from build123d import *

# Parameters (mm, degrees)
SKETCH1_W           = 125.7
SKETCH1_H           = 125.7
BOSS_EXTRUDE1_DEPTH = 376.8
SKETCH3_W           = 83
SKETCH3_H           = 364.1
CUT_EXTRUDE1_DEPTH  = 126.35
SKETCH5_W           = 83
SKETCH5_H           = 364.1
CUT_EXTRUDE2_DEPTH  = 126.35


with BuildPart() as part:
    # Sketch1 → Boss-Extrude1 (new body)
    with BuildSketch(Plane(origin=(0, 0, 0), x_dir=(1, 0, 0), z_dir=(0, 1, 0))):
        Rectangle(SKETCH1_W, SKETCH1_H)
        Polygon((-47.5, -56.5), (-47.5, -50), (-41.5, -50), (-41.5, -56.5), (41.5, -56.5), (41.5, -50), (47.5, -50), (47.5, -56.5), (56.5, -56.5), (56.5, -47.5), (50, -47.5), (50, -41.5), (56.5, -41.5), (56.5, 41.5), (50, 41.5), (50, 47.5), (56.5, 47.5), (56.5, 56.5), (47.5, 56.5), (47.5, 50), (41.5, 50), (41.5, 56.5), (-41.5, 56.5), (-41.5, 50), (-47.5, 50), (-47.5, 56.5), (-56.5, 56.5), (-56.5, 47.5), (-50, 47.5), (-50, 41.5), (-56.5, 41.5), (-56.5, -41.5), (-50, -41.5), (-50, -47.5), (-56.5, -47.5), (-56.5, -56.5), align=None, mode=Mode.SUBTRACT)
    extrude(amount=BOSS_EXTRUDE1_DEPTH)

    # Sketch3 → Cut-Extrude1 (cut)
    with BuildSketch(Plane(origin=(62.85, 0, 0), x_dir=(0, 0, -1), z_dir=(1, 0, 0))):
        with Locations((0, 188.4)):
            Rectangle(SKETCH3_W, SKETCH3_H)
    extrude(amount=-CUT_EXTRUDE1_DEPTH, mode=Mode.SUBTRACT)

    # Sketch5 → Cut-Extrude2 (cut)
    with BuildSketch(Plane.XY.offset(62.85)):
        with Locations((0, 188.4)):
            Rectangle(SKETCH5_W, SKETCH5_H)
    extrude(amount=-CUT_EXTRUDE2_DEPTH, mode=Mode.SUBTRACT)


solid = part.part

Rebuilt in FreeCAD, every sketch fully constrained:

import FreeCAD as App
import Part
import Sketcher

doc = App.newDocument("Part")
body = doc.addObject("PartDesign::Body", "Body")

# Sketch on XZ plane
sketch1 = body.newObject("Sketcher::SketchObject", "Sketch")
sketch1.AttachmentSupport = (doc.getObject("XZ_Plane"), [""])
sketch1.MapMode = "FlatFace"
sketch1.addGeometry(Part.LineSegment(App.Vector(-62.85, -62.85, 0), App.Vector(-62.85, 62.85, 0)), False)
sketch1.addGeometry(Part.LineSegment(App.Vector(-62.85, 62.85, 0), App.Vector(62.85, 62.85, 0)), False)
sketch1.addGeometry(Part.LineSegment(App.Vector(62.85, 62.85, 0), App.Vector(62.85, -62.85, 0)), False)
sketch1.addGeometry(Part.LineSegment(App.Vector(62.85, -62.85, 0), App.Vector(-62.85, -62.85, 0)), False)
sketch1.addGeometry(Part.LineSegment(App.Vector(-47.5, 50, 0), App.Vector(-47.5, 56.5, 0)), False)
sketch1.addGeometry(Part.LineSegment(App.Vector(-47.5, 56.5, 0), App.Vector(-56.5, 56.5, 0)), False)
sketch1.addGeometry(Part.LineSegment(App.Vector(-56.5, 56.5, 0), App.Vector(-56.5, 47.5, 0)), False)
sketch1.addGeometry(Part.LineSegment(App.Vector(-56.5, 47.5, 0), App.Vector(-50, 47.5, 0)), False)
sketch1.addGeometry(Part.LineSegment(App.Vector(-50, 47.5, 0), App.Vector(-50, 41.5, 0)), False)
sketch1.addGeometry(Part.LineSegment(App.Vector(-50, 41.5, 0), App.Vector(-56.5, 41.5, 0)), False)
sketch1.addGeometry(Part.LineSegment(App.Vector(-56.5, 41.5, 0), App.Vector(-56.5, -41.5, 0)), False)
sketch1.addGeometry(Part.LineSegment(App.Vector(-56.5, -41.5, 0), App.Vector(-50, -41.5, 0)), False)
sketch1.addGeometry(Part.LineSegment(App.Vector(-50, -41.5, 0), App.Vector(-50, -47.5, 0)), False)
sketch1.addGeometry(Part.LineSegment(App.Vector(-50, -47.5, 0), App.Vector(-56.5, -47.5, 0)), False)
sketch1.addGeometry(Part.LineSegment(App.Vector(-56.5, -47.5, 0), App.Vector(-56.5, -56.5, 0)), False)
sketch1.addGeometry(Part.LineSegment(App.Vector(-56.5, -56.5, 0), App.Vector(-47.5, -56.5, 0)), False)
sketch1.addGeometry(Part.LineSegment(App.Vector(-47.5, -56.5, 0), App.Vector(-47.5, -50, 0)), False)
sketch1.addGeometry(Part.LineSegment(App.Vector(-47.5, -50, 0), App.Vector(-41.5, -50, 0)), False)
sketch1.addGeometry(Part.LineSegment(App.Vector(-41.5, -50, 0), App.Vector(-41.5, -56.5, 0)), False)
sketch1.addGeometry(Part.LineSegment(App.Vector(-41.5, -56.5, 0), App.Vector(41.5, -56.5, 0)), False)
sketch1.addGeometry(Part.LineSegment(App.Vector(41.5, -56.5, 0), App.Vector(41.5, -50, 0)), False)
sketch1.addGeometry(Part.LineSegment(App.Vector(41.5, -50, 0), App.Vector(47.5, -50, 0)), False)
sketch1.addGeometry(Part.LineSegment(App.Vector(47.5, -50, 0), App.Vector(47.5, -56.5, 0)), False)
sketch1.addGeometry(Part.LineSegment(App.Vector(47.5, -56.5, 0), App.Vector(56.5, -56.5, 0)), False)
sketch1.addGeometry(Part.LineSegment(App.Vector(56.5, -56.5, 0), App.Vector(56.5, -47.5, 0)), False)
sketch1.addGeometry(Part.LineSegment(App.Vector(56.5, -47.5, 0), App.Vector(50, -47.5, 0)), False)
sketch1.addGeometry(Part.LineSegment(App.Vector(50, -47.5, 0), App.Vector(50, -41.5, 0)), False)
sketch1.addGeometry(Part.LineSegment(App.Vector(50, -41.5, 0), App.Vector(56.5, -41.5, 0)), False)
sketch1.addGeometry(Part.LineSegment(App.Vector(56.5, -41.5, 0), App.Vector(56.5, 41.5, 0)), False)
sketch1.addGeometry(Part.LineSegment(App.Vector(56.5, 41.5, 0), App.Vector(50, 41.5, 0)), False)
sketch1.addGeometry(Part.LineSegment(App.Vector(50, 41.5, 0), App.Vector(50, 47.5, 0)), False)
sketch1.addGeometry(Part.LineSegment(App.Vector(50, 47.5, 0), App.Vector(56.5, 47.5, 0)), False)
sketch1.addGeometry(Part.LineSegment(App.Vector(56.5, 47.5, 0), App.Vector(56.5, 56.5, 0)), False)
sketch1.addGeometry(Part.LineSegment(App.Vector(56.5, 56.5, 0), App.Vector(47.5, 56.5, 0)), False)
sketch1.addGeometry(Part.LineSegment(App.Vector(47.5, 56.5, 0), App.Vector(47.5, 50, 0)), False)
sketch1.addGeometry(Part.LineSegment(App.Vector(47.5, 50, 0), App.Vector(41.5, 50, 0)), False)
sketch1.addGeometry(Part.LineSegment(App.Vector(41.5, 50, 0), App.Vector(41.5, 56.5, 0)), False)
sketch1.addGeometry(Part.LineSegment(App.Vector(41.5, 56.5, 0), App.Vector(-41.5, 56.5, 0)), False)
sketch1.addGeometry(Part.LineSegment(App.Vector(-41.5, 56.5, 0), App.Vector(-41.5, 50, 0)), False)
sketch1.addGeometry(Part.LineSegment(App.Vector(-41.5, 50, 0), App.Vector(-47.5, 50, 0)), False)
sketch1.addConstraint(Sketcher.Constraint("Coincident", 0, 2, 1, 1))
sketch1.addConstraint(Sketcher.Constraint("Coincident", 1, 2, 2, 1))
sketch1.addConstraint(Sketcher.Constraint("Coincident", 2, 2, 3, 1))
sketch1.addConstraint(Sketcher.Constraint("Coincident", 3, 2, 0, 1))
sketch1.addConstraint(Sketcher.Constraint("Coincident", 4, 2, 5, 1))
sketch1.addConstraint(Sketcher.Constraint("Coincident", 5, 2, 6, 1))
sketch1.addConstraint(Sketcher.Constraint("Coincident", 6, 2, 7, 1))
sketch1.addConstraint(Sketcher.Constraint("Coincident", 7, 2, 8, 1))
sketch1.addConstraint(Sketcher.Constraint("Coincident", 8, 2, 9, 1))
sketch1.addConstraint(Sketcher.Constraint("Coincident", 9, 2, 10, 1))
sketch1.addConstraint(Sketcher.Constraint("Coincident", 10, 2, 11, 1))
sketch1.addConstraint(Sketcher.Constraint("Coincident", 11, 2, 12, 1))
sketch1.addConstraint(Sketcher.Constraint("Coincident", 12, 2, 13, 1))
sketch1.addConstraint(Sketcher.Constraint("Coincident", 13, 2, 14, 1))
sketch1.addConstraint(Sketcher.Constraint("Coincident", 14, 2, 15, 1))
sketch1.addConstraint(Sketcher.Constraint("Coincident", 15, 2, 16, 1))
sketch1.addConstraint(Sketcher.Constraint("Coincident", 16, 2, 17, 1))
sketch1.addConstraint(Sketcher.Constraint("Coincident", 17, 2, 18, 1))
sketch1.addConstraint(Sketcher.Constraint("Coincident", 18, 2, 19, 1))
sketch1.addConstraint(Sketcher.Constraint("Coincident", 19, 2, 20, 1))
sketch1.addConstraint(Sketcher.Constraint("Coincident", 20, 2, 21, 1))
sketch1.addConstraint(Sketcher.Constraint("Coincident", 21, 2, 22, 1))
sketch1.addConstraint(Sketcher.Constraint("Coincident", 22, 2, 23, 1))
sketch1.addConstraint(Sketcher.Constraint("Coincident", 23, 2, 24, 1))
sketch1.addConstraint(Sketcher.Constraint("Coincident", 24, 2, 25, 1))
sketch1.addConstraint(Sketcher.Constraint("Coincident", 25, 2, 26, 1))
sketch1.addConstraint(Sketcher.Constraint("Coincident", 26, 2, 27, 1))
sketch1.addConstraint(Sketcher.Constraint("Coincident", 27, 2, 28, 1))
sketch1.addConstraint(Sketcher.Constraint("Coincident", 28, 2, 29, 1))
sketch1.addConstraint(Sketcher.Constraint("Coincident", 29, 2, 30, 1))
sketch1.addConstraint(Sketcher.Constraint("Coincident", 30, 2, 31, 1))
sketch1.addConstraint(Sketcher.Constraint("Coincident", 31, 2, 32, 1))
sketch1.addConstraint(Sketcher.Constraint("Coincident", 32, 2, 33, 1))
sketch1.addConstraint(Sketcher.Constraint("Coincident", 33, 2, 34, 1))
sketch1.addConstraint(Sketcher.Constraint("Coincident", 34, 2, 35, 1))
sketch1.addConstraint(Sketcher.Constraint("Coincident", 35, 2, 36, 1))
sketch1.addConstraint(Sketcher.Constraint("Coincident", 36, 2, 37, 1))
sketch1.addConstraint(Sketcher.Constraint("Coincident", 37, 2, 38, 1))
sketch1.addConstraint(Sketcher.Constraint("Coincident", 38, 2, 39, 1))
sketch1.addConstraint(Sketcher.Constraint("Coincident", 39, 2, 4, 1))
sketch1.addConstraint(Sketcher.Constraint("Vertical", 0))
sketch1.addConstraint(Sketcher.Constraint("Horizontal", 1))
sketch1.addConstraint(Sketcher.Constraint("Vertical", 2))
sketch1.addConstraint(Sketcher.Constraint("Horizontal", 3))
sketch1.addConstraint(Sketcher.Constraint("Vertical", 4))
sketch1.addConstraint(Sketcher.Constraint("Horizontal", 5))
sketch1.addConstraint(Sketcher.Constraint("Vertical", 6))
sketch1.addConstraint(Sketcher.Constraint("Horizontal", 7))
sketch1.addConstraint(Sketcher.Constraint("Vertical", 8))
sketch1.addConstraint(Sketcher.Constraint("Horizontal", 9))
sketch1.addConstraint(Sketcher.Constraint("Vertical", 10))
sketch1.addConstraint(Sketcher.Constraint("Horizontal", 11))
sketch1.addConstraint(Sketcher.Constraint("Vertical", 12))
sketch1.addConstraint(Sketcher.Constraint("Horizontal", 13))
sketch1.addConstraint(Sketcher.Constraint("Vertical", 14))
sketch1.addConstraint(Sketcher.Constraint("Horizontal", 15))
sketch1.addConstraint(Sketcher.Constraint("Vertical", 16))
sketch1.addConstraint(Sketcher.Constraint("Horizontal", 17))
sketch1.addConstraint(Sketcher.Constraint("Vertical", 18))
sketch1.addConstraint(Sketcher.Constraint("Horizontal", 19))
sketch1.addConstraint(Sketcher.Constraint("Vertical", 20))
sketch1.addConstraint(Sketcher.Constraint("Horizontal", 21))
sketch1.addConstraint(Sketcher.Constraint("Vertical", 22))
sketch1.addConstraint(Sketcher.Constraint("Horizontal", 23))
sketch1.addConstraint(Sketcher.Constraint("Vertical", 24))
sketch1.addConstraint(Sketcher.Constraint("Horizontal", 25))
sketch1.addConstraint(Sketcher.Constraint("Vertical", 26))
sketch1.addConstraint(Sketcher.Constraint("Horizontal", 27))
sketch1.addConstraint(Sketcher.Constraint("Vertical", 28))
sketch1.addConstraint(Sketcher.Constraint("Horizontal", 29))
sketch1.addConstraint(Sketcher.Constraint("Vertical", 30))
sketch1.addConstraint(Sketcher.Constraint("Horizontal", 31))
sketch1.addConstraint(Sketcher.Constraint("Vertical", 32))
sketch1.addConstraint(Sketcher.Constraint("Horizontal", 33))
sketch1.addConstraint(Sketcher.Constraint("Vertical", 34))
sketch1.addConstraint(Sketcher.Constraint("Horizontal", 35))
sketch1.addConstraint(Sketcher.Constraint("Vertical", 36))
sketch1.addConstraint(Sketcher.Constraint("Horizontal", 37))
sketch1.addConstraint(Sketcher.Constraint("Vertical", 38))
sketch1.addConstraint(Sketcher.Constraint("Horizontal", 39))
sketch1.addConstraint(Sketcher.Constraint("Symmetric", 0, 2, 2, 2, -1, 1))
sketch1.addConstraint(Sketcher.Constraint("Symmetric", 4, 2, 22, 2, -1, 1))
sketch1.addConstraint(Sketcher.Constraint("Symmetric", 6, 2, 24, 2, -1, 1))
sketch1.addConstraint(Sketcher.Constraint("Symmetric", 8, 2, 26, 2, -1, 1))
sketch1.addConstraint(Sketcher.Constraint("Symmetric", 10, 2, 28, 2, -1, 1))
sketch1.addConstraint(Sketcher.Constraint("Symmetric", 12, 2, 30, 2, -1, 1))
sketch1.addConstraint(Sketcher.Constraint("Symmetric", 14, 2, 32, 2, -1, 1))
sketch1.addConstraint(Sketcher.Constraint("Symmetric", 16, 2, 34, 2, -1, 1))
sketch1.addConstraint(Sketcher.Constraint("Symmetric", 18, 2, 36, 2, -1, 1))
sketch1.addConstraint(Sketcher.Constraint("Symmetric", 20, 2, 38, 2, -1, 1))
sketch1.addConstraint(Sketcher.Constraint("Symmetric", 17, 2, 20, 2, -2))
sketch1.addConstraint(Sketcher.Constraint("Symmetric", 15, 2, 22, 2, -2))
sketch1.addConstraint(Sketcher.Constraint("Symmetric", 13, 2, 24, 2, -2))
sketch1.addConstraint(Sketcher.Constraint("Symmetric", 11, 2, 26, 2, -2))
sketch1.addConstraint(Sketcher.Constraint("Horizontal", 15, 2, 18, 2))
sketch1.addConstraint(Sketcher.Constraint("Vertical", 6, 2, 9, 2))
sketch1.addConstraint(Sketcher.Constraint("Equal", 3, 0))
sketch1.addConstraint(Sketcher.Constraint("Equal", 31, 4))
sketch1.addConstraint(Sketcher.Constraint("Equal", 33, 6))
sketch1.addConstraint(Sketcher.Constraint("Equal", 39, 8))
sketch1.addConstraint(Sketcher.Constraint("Equal", 37, 10))
sketch1.addConstraint(Sketcher.Constraint("DistanceX", 5, 2, 5, 1, 9.0))
sketch1.addConstraint(Sketcher.Constraint("DistanceX", 17, 1, 17, 2, 6.0))
sketch1.addConstraint(Sketcher.Constraint("DistanceX", 19, 1, 19, 2, 83.0))
sketch1.addConstraint(Sketcher.Constraint("DistanceX", 1, 1, 1, 2, 125.7))
sketch1.addConstraint(Sketcher.Constraint("DistanceX", 7, 1, 7, 2, 6.5))
pad1 = body.newObject("PartDesign::Pad", "Pad")
pad1.Profile = sketch1
pad1.Length = 376.8
pad1.Reversed = True

# Sketch on YZ plane
sketch2 = body.newObject("Sketcher::SketchObject", "Sketch001")
sketch2.AttachmentSupport = (doc.getObject("YZ_Plane"), [""])
sketch2.MapMode = "FlatFace"
sketch2.AttachmentOffset = App.Placement(App.Vector(0, 0, 62.85), App.Rotation())
sketch2.addGeometry(Part.LineSegment(App.Vector(370.45, 41.5, 0), App.Vector(6.35, 41.5, 0)), False)
sketch2.addGeometry(Part.LineSegment(App.Vector(6.35, 41.5, 0), App.Vector(6.35, -41.5, 0)), False)
sketch2.addGeometry(Part.LineSegment(App.Vector(6.35, -41.5, 0), App.Vector(370.45, -41.5, 0)), False)
sketch2.addGeometry(Part.LineSegment(App.Vector(370.45, -41.5, 0), App.Vector(370.45, 41.5, 0)), False)
sketch2.addConstraint(Sketcher.Constraint("Coincident", 0, 2, 1, 1))
sketch2.addConstraint(Sketcher.Constraint("Coincident", 1, 2, 2, 1))
sketch2.addConstraint(Sketcher.Constraint("Coincident", 2, 2, 3, 1))
sketch2.addConstraint(Sketcher.Constraint("Coincident", 3, 2, 0, 1))
sketch2.addConstraint(Sketcher.Constraint("Horizontal", 0))
sketch2.addConstraint(Sketcher.Constraint("Vertical", 1))
sketch2.addConstraint(Sketcher.Constraint("Horizontal", 2))
sketch2.addConstraint(Sketcher.Constraint("Vertical", 3))
sketch2.addConstraint(Sketcher.Constraint("DistanceY", 1, 2, 1, 1, 83.0))
sketch2.addConstraint(Sketcher.Constraint("DistanceX", 0, 2, 0, 1, 364.1))
sketch2.addConstraint(Sketcher.Constraint("DistanceY", -1, 1, 0, 2, 41.5))
sketch2.addConstraint(Sketcher.Constraint("DistanceX", -1, 1, 0, 2, 6.35))
pocket1 = body.newObject("PartDesign::Pocket", "Pocket")
pocket1.Profile = sketch2
pocket1.Length = 126.35

# Sketch on XY plane
sketch3 = body.newObject("Sketcher::SketchObject", "Sketch002")
sketch3.AttachmentSupport = (doc.getObject("XY_Plane"), [""])
sketch3.MapMode = "FlatFace"
sketch3.AttachmentOffset = App.Placement(App.Vector(0, 0, 62.85), App.Rotation())
sketch3.addGeometry(Part.LineSegment(App.Vector(-41.5, 370.45, 0), App.Vector(-41.5, 6.35, 0)), False)
sketch3.addGeometry(Part.LineSegment(App.Vector(-41.5, 6.35, 0), App.Vector(41.5, 6.35, 0)), False)
sketch3.addGeometry(Part.LineSegment(App.Vector(41.5, 6.35, 0), App.Vector(41.5, 370.45, 0)), False)
sketch3.addGeometry(Part.LineSegment(App.Vector(41.5, 370.45, 0), App.Vector(-41.5, 370.45, 0)), False)
sketch3.addConstraint(Sketcher.Constraint("Coincident", 0, 2, 1, 1))
sketch3.addConstraint(Sketcher.Constraint("Coincident", 1, 2, 2, 1))
sketch3.addConstraint(Sketcher.Constraint("Coincident", 2, 2, 3, 1))
sketch3.addConstraint(Sketcher.Constraint("Coincident", 3, 2, 0, 1))
sketch3.addConstraint(Sketcher.Constraint("Vertical", 0))
sketch3.addConstraint(Sketcher.Constraint("Horizontal", 1))
sketch3.addConstraint(Sketcher.Constraint("Vertical", 2))
sketch3.addConstraint(Sketcher.Constraint("Horizontal", 3))
sketch3.addConstraint(Sketcher.Constraint("DistanceX", 1, 1, 1, 2, 83.0))
sketch3.addConstraint(Sketcher.Constraint("DistanceY", 0, 2, 0, 1, 364.1))
sketch3.addConstraint(Sketcher.Constraint("DistanceX", 0, 2, -1, 1, 41.5))
sketch3.addConstraint(Sketcher.Constraint("DistanceY", -1, 1, 0, 2, 6.35))
pocket2 = body.newObject("PartDesign::Pocket", "Pocket001")
pocket2.Profile = sketch3
pocket2.Length = 126.35

doc.recompute()
